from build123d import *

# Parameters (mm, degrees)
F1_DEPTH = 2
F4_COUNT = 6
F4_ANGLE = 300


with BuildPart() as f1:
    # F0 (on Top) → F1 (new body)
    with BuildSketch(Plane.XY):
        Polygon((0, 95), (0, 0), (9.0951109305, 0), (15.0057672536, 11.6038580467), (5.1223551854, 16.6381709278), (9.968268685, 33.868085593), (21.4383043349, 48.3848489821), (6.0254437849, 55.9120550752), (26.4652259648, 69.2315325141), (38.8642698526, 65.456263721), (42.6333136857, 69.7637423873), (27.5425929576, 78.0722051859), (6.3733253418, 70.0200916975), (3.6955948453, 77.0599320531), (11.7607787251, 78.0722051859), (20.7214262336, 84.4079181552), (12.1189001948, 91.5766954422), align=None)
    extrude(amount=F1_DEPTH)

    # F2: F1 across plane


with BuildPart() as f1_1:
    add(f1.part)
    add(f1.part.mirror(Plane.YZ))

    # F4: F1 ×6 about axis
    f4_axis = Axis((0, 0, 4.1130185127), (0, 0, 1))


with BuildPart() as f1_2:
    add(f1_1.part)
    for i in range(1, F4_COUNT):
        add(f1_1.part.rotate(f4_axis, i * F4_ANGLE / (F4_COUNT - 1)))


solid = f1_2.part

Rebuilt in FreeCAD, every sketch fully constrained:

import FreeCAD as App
import Part
import Sketcher

V = App.Vector
Q = App.Units.Quantity

doc = App.newDocument("Part")
params = doc.addObject("Spreadsheet::Sheet", "Params")
for row, (alias, value) in enumerate([
    ("sketch1_height", "95 mm"),
    ("pad1_length", "2 mm"),
], start=1):
    params.set(f"A{row}", alias)
    params.set(f"B{row}", "=" + value)
    params.setAlias(f"B{row}", alias)

body = doc.addObject("PartDesign::Body", "Body")

# Sketch on XY plane
sketch1 = doc.addObject("Sketcher::SketchObject", "Sketch")
body.addObject(sketch1)
sketch1.AttachmentSupport = (doc.XY_Plane, [""])
sketch1.MapMode = "FlatFace"
sketch1.addGeometry([
    Part.LineSegment(V(0, 95, 0), V(0, 0, 0)),  # 0
    Part.LineSegment(V(0, 0, 0), V(9, 0, 0)),  # 1
    Part.LineSegment(V(9, 0, 0), V(15, 12, 0)),  # 2
    Part.LineSegment(V(15, 12, 0), V(5, 17, 0)),  # 3
    Part.LineSegment(V(5, 17, 0), V(10, 34, 0)),  # 4
    Part.LineSegment(V(10, 34, 0), V(21, 48, 0)),  # 5
    Part.LineSegment(V(21, 48, 0), V(6, 56, 0)),  # 6
    Part.LineSegment(V(6, 56, 0), V(26, 69, 0)),  # 7
    Part.LineSegment(V(26, 69, 0), V(39, 65, 0)),  # 8
    Part.LineSegment(V(39, 65, 0), V(43, 70, 0)),  # 9
    Part.LineSegment(V(43, 70, 0), V(28, 78, 0)),  # 10
    Part.LineSegment(V(28, 78, 0), V(6, 70, 0)),  # 11
    Part.LineSegment(V(6, 70, 0), V(4, 77, 0)),  # 12
    Part.LineSegment(V(4, 77, 0), V(12, 78, 0)),  # 13
    Part.LineSegment(V(12, 78, 0), V(21, 84, 0)),  # 14
    Part.LineSegment(V(21, 84, 0), V(12, 92, 0)),  # 15
    Part.LineSegment(V(12, 92, 0), V(0, 95, 0)),  # 16
], False)
sketch1.addConstraint([
    Sketcher.Constraint("Coincident", 0, 2, 1, 1),
    Sketcher.Constraint("Coincident", 1, 2, 2, 1),
    Sketcher.Constraint("Coincident", 2, 2, 3, 1),
    Sketcher.Constraint("Coincident", 3, 2, 4, 1),
    Sketcher.Constraint("Coincident", 4, 2, 5, 1),
    Sketcher.Constraint("Coincident", 5, 2, 6, 1),
    Sketcher.Constraint("Coincident", 6, 2, 7, 1),
    Sketcher.Constraint("Coincident", 7, 2, 8, 1),
    Sketcher.Constraint("Coincident", 8, 2, 9, 1),
    Sketcher.Constraint("Coincident", 9, 2, 10, 1),
    Sketcher.Constraint("Coincident", 10, 2, 11, 1),
    Sketcher.Constraint("Coincident", 11, 2, 12, 1),
    Sketcher.Constraint("Coincident", 12, 2, 13, 1),
    Sketcher.Constraint("Coincident", 13, 2, 14, 1),
    Sketcher.Constraint("Coincident", 14, 2, 15, 1),
    Sketcher.Constraint("Coincident", 15, 2, 16, 1),
    Sketcher.Constraint("Coincident", 16, 2, 0, 1),
    Sketcher.Constraint("Vertical", 0),
    Sketcher.Constraint("Horizontal", 1),
    Sketcher.Constraint("Coincident", 0, 2, -1, 1),
    Sketcher.Constraint("Perpendicular", 2, 3),
    Sketcher.Constraint("Perpendicular", 11, 12),
    Sketcher.Constraint("Horizontal", 10, 2, 13, 2),
    Sketcher.Constraint("DistanceY", 0, 2, 0, 1, Q("95 mm")),
    Sketcher.Constraint("DistanceX", 4, 2, 8, 2, Q("28.896001 mm")),
    Sketcher.Constraint("DistanceX", 12, 2, 10, 2, Q("23.846998 mm")),
    Sketcher.Constraint("Distance", 5, Q("18.501301 mm")),
    Sketcher.Constraint("Distance", 6, Q("17.1527 mm")),
    Sketcher.Constraint("DistanceX", 1, 1, 1, 2, Q("9.095111 mm")),
    Sketcher.Constraint("DistanceX", -1, 1, 15, 2, Q("12.1189 mm")),
    Sketcher.Constraint("DistanceX", 4, 2, 2, 2, Q("5.037499 mm")),
    Sketcher.Constraint("DistanceX", 11, 2, 7, 2, Q("20.091901 mm")),
    Sketcher.Constraint("DistanceY", 7, 2, 12, 2, Q("7.8284 mm")),
    Sketcher.Constraint("DistanceX", 14, 2, 7, 2, Q("5.7438 mm")),
    Sketcher.Constraint("Distance", 7, Q("24.396581 mm")),
    Sketcher.Constraint("Distance", 9, Q("5.723641 mm")),
    Sketcher.Constraint("Distance", 11, Q("22.648939 mm")),
    Sketcher.Constraint("Distance", 13, Q("8.128462 mm")),
    Sketcher.Constraint("DistanceY", -1, 1, 2, 2, Q("11.603858 mm")),
    Sketcher.Constraint("DistanceY", -1, 1, 3, 2, Q("16.638171 mm")),
    Sketcher.Constraint("DistanceX", -1, 1, 4, 2, Q("9.968269 mm")),
    Sketcher.Constraint("DistanceY", -1, 1, 5, 2, Q("48.384849 mm")),
    Sketcher.Constraint("DistanceY", -1, 1, 11, 2, Q("70.020092 mm")),
    Sketcher.Constraint("DistanceX", -1, 1, 13, 2, Q("11.760779 mm")),
    Sketcher.Constraint("DistanceY", -1, 1, 14, 2, Q("84.407918 mm")),
    Sketcher.Constraint("DistanceX", 3, 2, 5, 2, Q("16.315949 mm")),
    Sketcher.Constraint("DistanceX", 6, 2, 5, 2, Q("15.412861 mm")),
    Sketcher.Constraint("DistanceY", 8, 2, 7, 2, Q("3.775269 mm")),
    Sketcher.Constraint("DistanceY", 8, 2, 9, 2, Q("4.307479 mm")),
    Sketcher.Constraint("DistanceY", 13, 2, 15, 2, Q("13.50449 mm")),
])
sketch1.setExpression("Constraints[23]", "Params.sketch1_height")
pad1 = doc.addObject("PartDesign::Pad", "Pad")
body.addObject(pad1)
pad1.Profile = sketch1
pad1.setExpression("Length", "Params.pad1_length")
body2 = doc.addObject("PartDesign::Body", "Body001")
doc.recompute()

body2.BaseFeature = body
doc.recompute()

mirroring = doc.addObject("Part::Mirroring", "Mirroring")
mirroring.Source = body
mirroring.Base = V(0, 0, 0)
mirroring.Normal = V(1, 0, 0)
body3 = doc.addObject("PartDesign::Body", "Body002")
body3.BaseFeature = mirroring
boolean = doc.addObject("PartDesign::Boolean", "Boolean")
body2.addObject(boolean)
boolean.Type = "Fuse"
boolean.addObjects([body3])
doc.recompute()
body4 = doc.addObject("PartDesign::Body", "Body003")
doc.recompute()

body4.BaseFeature = body2
doc.recompute()

body5 = doc.addObject("PartDesign::Body", "Body004")
body5.BaseFeature = body2
body5.Placement = App.Placement(V(0, 0, 0), App.Rotation(V(0, 0, 1), 60))
boolean2 = doc.addObject("PartDesign::Boolean", "Boolean001")
body4.addObject(boolean2)
boolean2.Type = "Fuse"
boolean2.addObjects([body5])
doc.recompute()

body6 = doc.addObject("PartDesign::Body", "Body005")
body6.BaseFeature = body2
body6.Placement = App.Placement(V(0, 0, 0), App.Rotation(V(0, 0, 1), 120))
boolean3 = doc.addObject("PartDesign::Boolean", "Boolean002")
body4.addObject(boolean3)
boolean3.Type = "Fuse"
boolean3.addObjects([body6])
doc.recompute()

body7 = doc.addObject("PartDesign::Body", "Body006")
body7.BaseFeature = body2
body7.Placement = App.Placement(V(0, 0, 0), App.Rotation(V(0, 0, 1), 180))
boolean4 = doc.addObject("PartDesign::Boolean", "Boolean003")
body4.addObject(boolean4)
boolean4.Type = "Fuse"
boolean4.addObjects([body7])
doc.recompute()

body8 = doc.addObject("PartDesign::Body", "Body007")
body8.BaseFeature = body2
body8.Placement = App.Placement(V(0, 0, 0), App.Rotation(V(0, 0, 1), 240))
boolean5 = doc.addObject("PartDesign::Boolean", "Boolean004")
body4.addObject(boolean5)
boolean5.Type = "Fuse"
boolean5.addObjects([body8])
doc.recompute()

body2.Placement = App.Placement(V(0, 0, 0), App.Rotation(V(0, 0, 1), 300))
boolean6 = doc.addObject("PartDesign::Boolean", "Boolean005")
body4.addObject(boolean6)
boolean6.Type = "Fuse"
boolean6.addObjects([body2])
mirroring.Visibility = False

doc.recompute()
